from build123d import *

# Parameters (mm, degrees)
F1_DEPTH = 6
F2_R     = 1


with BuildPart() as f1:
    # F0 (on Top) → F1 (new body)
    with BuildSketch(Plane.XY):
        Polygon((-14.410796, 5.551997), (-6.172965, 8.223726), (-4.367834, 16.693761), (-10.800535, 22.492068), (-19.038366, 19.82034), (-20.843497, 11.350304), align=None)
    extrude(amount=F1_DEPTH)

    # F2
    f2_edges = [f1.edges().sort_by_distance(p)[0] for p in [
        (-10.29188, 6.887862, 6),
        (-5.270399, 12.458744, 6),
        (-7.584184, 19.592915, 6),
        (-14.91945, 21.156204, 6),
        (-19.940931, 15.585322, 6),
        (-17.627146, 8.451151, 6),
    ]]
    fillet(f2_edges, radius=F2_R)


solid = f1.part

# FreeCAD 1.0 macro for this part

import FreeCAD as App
import Part
import Sketcher


def edges_at(feature, points):
    """Names of the edges that pass closest to the given points."""
    edges = feature.Shape.Edges
    near = lambda p: min(range(len(edges)), key=lambda i: edges[i].distToShape(Part.Vertex(*p))[0])
    return sorted({f"Edge{near(p) + 1}" for p in points})

doc = App.newDocument("Part")
body = doc.addObject("PartDesign::Body", "Body")

# Sketch on XY plane
sketch1 = body.newObject("Sketcher::SketchObject", "Sketch")
sketch1.AttachmentSupport = (doc.getObject("XY_Plane"), [""])
sketch1.MapMode = "FlatFace"
sketch1.addGeometry([
    Part.LineSegment(App.Vector(-14, 6, 0), App.Vector(-6, 8, 0)),  # 0
    Part.LineSegment(App.Vector(-6, 8, 0), App.Vector(-4, 17, 0)),  # 1
    Part.LineSegment(App.Vector(-4, 17, 0), App.Vector(-11, 22, 0)),  # 2
    Part.LineSegment(App.Vector(-11, 22, 0), App.Vector(-19, 20, 0)),  # 3
    Part.LineSegment(App.Vector(-19, 20, 0), App.Vector(-21, 11, 0)),  # 4
    Part.LineSegment(App.Vector(-21, 11, 0), App.Vector(-14, 6, 0)),  # 5
], False)
sketch1.addConstraint([
    Sketcher.Constraint("Coincident", 0, 2, 1, 1),
    Sketcher.Constraint("Coincident", 1, 2, 2, 1),
    Sketcher.Constraint("Coincident", 2, 2, 3, 1),
    Sketcher.Constraint("Coincident", 3, 2, 4, 1),
    Sketcher.Constraint("Coincident", 4, 2, 5, 1),
    Sketcher.Constraint("Coincident", 5, 2, 0, 1),
    Sketcher.Constraint("Parallel", 0, 3),
    Sketcher.Constraint("Parallel", 1, 4),
    Sketcher.Constraint("Parallel", 2, 5),
    Sketcher.Constraint("Equal", 0, 1),
    Sketcher.Constraint("Equal", 1, 2),
    Sketcher.Constraint("Equal", 2, 3),
    Sketcher.Constraint("DistanceX", 2, 2, 1, 2, 6.432701),
    Sketcher.Constraint("DistanceX", 3, 2, 0, 2, 12.865401),
    Sketcher.Constraint("DistanceY", -1, 1, 1, 2, 16.693761),
    Sketcher.Constraint("DistanceY", -1, 1, 2, 2, 22.492068),
    Sketcher.Constraint("DistanceY", -1, 1, 3, 2, 19.82034),
    Sketcher.Constraint("DistanceX", 0, 2, -1, 1, 6.172965),
])
pad1 = body.newObject("PartDesign::Pad", "Pad")
pad1.Profile = sketch1
pad1.Length = 6
doc.recompute()

fillet = body.newObject("PartDesign::Fillet", "Fillet")
fillet.Base = (pad1, edges_at(pad1, [
    (-10.292, 6.888, 6),
    (-5.27, 12.459, 6),
    (-7.584, 19.593, 6),
    (-14.919, 21.156, 6),
    (-19.941, 15.585, 6),
    (-17.627, 8.451, 6),
]))
fillet.Radius = 1

doc.recompute()
